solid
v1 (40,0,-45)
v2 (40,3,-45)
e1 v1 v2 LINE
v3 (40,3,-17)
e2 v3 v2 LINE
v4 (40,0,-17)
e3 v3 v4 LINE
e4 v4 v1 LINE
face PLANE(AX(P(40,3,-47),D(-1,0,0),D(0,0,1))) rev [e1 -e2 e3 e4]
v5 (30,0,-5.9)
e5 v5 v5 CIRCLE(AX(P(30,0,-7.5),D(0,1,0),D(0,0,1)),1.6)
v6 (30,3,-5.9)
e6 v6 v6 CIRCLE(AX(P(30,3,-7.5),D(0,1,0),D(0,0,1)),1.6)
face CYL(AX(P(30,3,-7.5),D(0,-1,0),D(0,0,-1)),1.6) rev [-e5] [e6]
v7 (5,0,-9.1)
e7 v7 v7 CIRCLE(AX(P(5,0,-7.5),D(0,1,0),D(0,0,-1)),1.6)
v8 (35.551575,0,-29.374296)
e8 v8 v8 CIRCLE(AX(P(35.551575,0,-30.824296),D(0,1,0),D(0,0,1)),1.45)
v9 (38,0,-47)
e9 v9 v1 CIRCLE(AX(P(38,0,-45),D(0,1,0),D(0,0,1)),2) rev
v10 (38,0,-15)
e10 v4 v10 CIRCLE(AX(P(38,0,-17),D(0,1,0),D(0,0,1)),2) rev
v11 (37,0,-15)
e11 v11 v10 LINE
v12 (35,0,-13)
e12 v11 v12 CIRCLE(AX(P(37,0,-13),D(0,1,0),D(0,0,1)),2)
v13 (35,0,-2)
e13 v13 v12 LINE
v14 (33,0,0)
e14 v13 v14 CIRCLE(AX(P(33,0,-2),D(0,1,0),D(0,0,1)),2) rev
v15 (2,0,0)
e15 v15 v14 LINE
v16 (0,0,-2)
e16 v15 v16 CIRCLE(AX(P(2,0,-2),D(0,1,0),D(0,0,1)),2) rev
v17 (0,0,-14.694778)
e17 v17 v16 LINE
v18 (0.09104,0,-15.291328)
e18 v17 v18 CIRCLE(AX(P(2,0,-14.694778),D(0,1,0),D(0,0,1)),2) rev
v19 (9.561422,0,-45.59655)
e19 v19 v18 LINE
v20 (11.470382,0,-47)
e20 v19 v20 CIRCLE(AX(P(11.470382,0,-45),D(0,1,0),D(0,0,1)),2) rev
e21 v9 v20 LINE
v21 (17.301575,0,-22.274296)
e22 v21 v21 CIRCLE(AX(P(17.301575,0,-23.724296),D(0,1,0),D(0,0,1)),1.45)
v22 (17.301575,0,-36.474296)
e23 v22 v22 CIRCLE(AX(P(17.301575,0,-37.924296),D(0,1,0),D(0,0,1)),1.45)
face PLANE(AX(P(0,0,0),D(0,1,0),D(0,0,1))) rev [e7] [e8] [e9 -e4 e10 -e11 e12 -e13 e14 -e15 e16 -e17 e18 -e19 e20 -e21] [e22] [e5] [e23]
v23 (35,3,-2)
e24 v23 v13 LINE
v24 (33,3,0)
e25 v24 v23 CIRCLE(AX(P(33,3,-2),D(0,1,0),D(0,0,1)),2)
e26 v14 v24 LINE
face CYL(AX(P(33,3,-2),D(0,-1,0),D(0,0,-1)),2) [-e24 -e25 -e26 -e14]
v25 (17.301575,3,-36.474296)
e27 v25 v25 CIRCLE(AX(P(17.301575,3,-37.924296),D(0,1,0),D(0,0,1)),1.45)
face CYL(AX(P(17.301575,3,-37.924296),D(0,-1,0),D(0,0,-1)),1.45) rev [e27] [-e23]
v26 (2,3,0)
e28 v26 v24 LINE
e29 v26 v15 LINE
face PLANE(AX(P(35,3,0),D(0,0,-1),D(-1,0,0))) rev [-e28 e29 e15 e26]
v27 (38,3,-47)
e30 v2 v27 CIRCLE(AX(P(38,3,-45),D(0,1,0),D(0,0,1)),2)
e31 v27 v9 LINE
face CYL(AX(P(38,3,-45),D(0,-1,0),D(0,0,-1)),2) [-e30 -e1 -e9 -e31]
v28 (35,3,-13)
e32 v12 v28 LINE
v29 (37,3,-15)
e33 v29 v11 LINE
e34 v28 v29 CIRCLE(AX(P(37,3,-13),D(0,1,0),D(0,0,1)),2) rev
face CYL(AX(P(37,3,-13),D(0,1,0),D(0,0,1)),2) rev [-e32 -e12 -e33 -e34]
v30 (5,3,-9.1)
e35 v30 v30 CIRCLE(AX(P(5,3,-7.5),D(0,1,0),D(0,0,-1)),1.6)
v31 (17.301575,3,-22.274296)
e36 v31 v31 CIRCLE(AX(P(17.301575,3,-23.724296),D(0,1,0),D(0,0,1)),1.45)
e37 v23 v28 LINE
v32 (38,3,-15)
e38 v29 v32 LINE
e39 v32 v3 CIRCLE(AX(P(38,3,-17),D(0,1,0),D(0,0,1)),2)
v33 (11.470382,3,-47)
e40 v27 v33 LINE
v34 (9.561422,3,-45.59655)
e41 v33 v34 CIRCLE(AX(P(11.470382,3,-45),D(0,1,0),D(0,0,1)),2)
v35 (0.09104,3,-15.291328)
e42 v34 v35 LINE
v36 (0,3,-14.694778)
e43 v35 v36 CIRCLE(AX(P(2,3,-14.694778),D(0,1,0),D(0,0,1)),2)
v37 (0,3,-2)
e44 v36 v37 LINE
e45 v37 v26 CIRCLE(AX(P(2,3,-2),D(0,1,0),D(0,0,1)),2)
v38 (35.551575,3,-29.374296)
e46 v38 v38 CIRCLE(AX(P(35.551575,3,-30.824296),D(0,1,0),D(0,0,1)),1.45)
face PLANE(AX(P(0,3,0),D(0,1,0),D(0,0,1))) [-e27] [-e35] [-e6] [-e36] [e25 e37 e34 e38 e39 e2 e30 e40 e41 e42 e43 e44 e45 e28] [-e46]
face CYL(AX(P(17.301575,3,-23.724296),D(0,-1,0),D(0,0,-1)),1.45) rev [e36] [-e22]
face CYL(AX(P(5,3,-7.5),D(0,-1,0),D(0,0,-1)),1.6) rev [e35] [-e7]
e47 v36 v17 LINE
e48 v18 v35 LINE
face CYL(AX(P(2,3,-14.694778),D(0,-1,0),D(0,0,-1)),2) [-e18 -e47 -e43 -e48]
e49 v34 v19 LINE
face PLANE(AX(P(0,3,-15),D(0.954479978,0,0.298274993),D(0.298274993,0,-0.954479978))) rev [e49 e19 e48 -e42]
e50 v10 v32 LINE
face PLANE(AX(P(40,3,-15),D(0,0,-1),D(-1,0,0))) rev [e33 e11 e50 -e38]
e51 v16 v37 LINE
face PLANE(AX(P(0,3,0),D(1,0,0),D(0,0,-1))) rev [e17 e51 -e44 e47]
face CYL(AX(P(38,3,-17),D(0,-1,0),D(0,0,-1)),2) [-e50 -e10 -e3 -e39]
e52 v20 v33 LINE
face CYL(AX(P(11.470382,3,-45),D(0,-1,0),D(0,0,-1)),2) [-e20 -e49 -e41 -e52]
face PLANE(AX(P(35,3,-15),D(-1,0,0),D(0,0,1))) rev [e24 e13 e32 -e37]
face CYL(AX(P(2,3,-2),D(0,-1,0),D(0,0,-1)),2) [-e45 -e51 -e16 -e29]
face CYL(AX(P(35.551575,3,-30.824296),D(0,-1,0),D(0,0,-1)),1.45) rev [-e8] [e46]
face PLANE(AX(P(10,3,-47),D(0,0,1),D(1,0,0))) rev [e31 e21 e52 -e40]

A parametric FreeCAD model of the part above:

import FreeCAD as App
import Part
import Sketcher
from FreeCAD import Vector
Q = App.Units.Quantity


def edges_at(feature, points):
    """Names of the edges that pass closest to the given points."""
    edges = feature.Shape.Edges
    near = lambda p: min(range(len(edges)), key=lambda i: edges[i].distToShape(Part.Vertex(*p))[0])
    return sorted({f"Edge{near(p) + 1}" for p in points})

doc = App.newDocument("Part")
body = doc.addObject("PartDesign::Body", "Body")

sketch1 = doc.addObject("Sketcher::SketchObject", "Sketch")
body.addObject(sketch1)
sketch1.AttachmentSupport = (doc.XZ_Plane, [""])
sketch1.MapMode = "FlatFace"
sketch1.addGeometry([
    Part.LineSegment(Vector(0, -15, 0), Vector(0, 0, 0)),
    Part.LineSegment(Vector(0, 0, 0), Vector(35, 0, 0)),
    Part.LineSegment(Vector(35, 0, 0), Vector(35, -15, 0)),
    Part.LineSegment(Vector(35, -15, 0), Vector(40, -15, 0)),
    Part.LineSegment(Vector(40, -15, 0), Vector(40, -47, 0)),
    Part.LineSegment(Vector(40, -47, 0), Vector(10, -47, 0)),
    Part.LineSegment(Vector(10, -47, 0), Vector(0, -15, 0)),
    Part.Circle(Vector(30, -7.5, 0), Vector(0, 0, 1), 1.6),
    Part.Circle(Vector(5, -7.5, 0), Vector(0, 0, 1), 1.6),
    Part.Circle(Vector(35.6, -30.8, 0), Vector(0, 0, 1), 1.4),
    Part.Circle(Vector(17.3, -23.7, 0), Vector(0, 0, 1), 1.4),
    Part.Circle(Vector(17.3, -37.9, 0), Vector(0, 0, 1), 1.4),
], False)
sketch1.addConstraint([
    Sketcher.Constraint("Coincident", 0, 2, 1, 1),
    Sketcher.Constraint("Coincident", 1, 2, 2, 1),
    Sketcher.Constraint("Coincident", 2, 2, 3, 1),
    Sketcher.Constraint("Coincident", 3, 2, 4, 1),
    Sketcher.Constraint("Coincident", 4, 2, 5, 1),
    Sketcher.Constraint("Coincident", 5, 2, 6, 1),
    Sketcher.Constraint("Coincident", 6, 2, 0, 1),
    Sketcher.Constraint("Vertical", 0),
    Sketcher.Constraint("Horizontal", 1),
    Sketcher.Constraint("Vertical", 2),
    Sketcher.Constraint("Horizontal", 3),
    Sketcher.Constraint("Vertical", 4),
    Sketcher.Constraint("Horizontal", 5),
    Sketcher.Constraint("Coincident", 0, 2, -1, 1),
    Sketcher.Constraint("Equal", 7, 8),
    Sketcher.Constraint("Equal", 9, 10),
    Sketcher.Constraint("Equal", 10, 11),
    Sketcher.Constraint("Horizontal", 7, 3, 8, 3),
    Sketcher.Constraint("Horizontal", 3, 2, 6, 2),
    Sketcher.Constraint("Vertical", 10, 3, 11, 3),
    Sketcher.Constraint("Diameter", 7, Q("3.2 mm")),
    Sketcher.Constraint("Diameter", 9, Q("2.9 mm")),
    Sketcher.Constraint("DistanceX", 1, 1, 1, 2, Q("35 mm")),
    Sketcher.Constraint("DistanceX", 3, 1, 3, 2, Q("5 mm")),
    Sketcher.Constraint("DistanceX", 5, 2, 5, 1, Q("30 mm")),
    Sketcher.Constraint("DistanceY", 0, 1, 0, 2, Q("15 mm")),
    Sketcher.Constraint("DistanceY", 4, 2, 4, 1, Q("32 mm")),
    Sketcher.Constraint("DistanceX", -1, 1, 7, 3, Q("30 mm")),
    Sketcher.Constraint("DistanceX", -1, 1, 8, 3, Q("5 mm")),
    Sketcher.Constraint("DistanceY", 7, 3, -1, 1, Q("7.5 mm")),
    Sketcher.Constraint("DistanceY", 9, 3, 10, 3, Q("7.1 mm")),
    Sketcher.Constraint("DistanceY", 11, 3, 10, 3, Q("14.2 mm")),
    Sketcher.Constraint("DistanceX", 10, 3, 9, 3, Q("18.25 mm")),
    Sketcher.Constraint("DistanceX", -1, 1, 9, 3, Q("35.551575 mm")),
    Sketcher.Constraint("DistanceY", 9, 3, -1, 1, Q("30.824296 mm")),
])
pad1 = doc.addObject("PartDesign::Pad", "Pad")
body.addObject(pad1)
pad1.Profile = sketch1
pad1.Length = 3
pad1.Reversed = True
doc.recompute()

fillet = doc.addObject("PartDesign::Fillet", "Fillet")
body.addObject(fillet)
fillet.Base = (pad1, edges_at(pad1, [
    (35, 1.5, -15),
    (35, 1.5, 0),
    (0, 1.5, 0),
    (0, 1.5, -15),
    (10, 1.5, -47),
    (40, 1.5, -47),
    (40, 1.5, -15),
]))
fillet.Radius = 2

doc.recompute()
